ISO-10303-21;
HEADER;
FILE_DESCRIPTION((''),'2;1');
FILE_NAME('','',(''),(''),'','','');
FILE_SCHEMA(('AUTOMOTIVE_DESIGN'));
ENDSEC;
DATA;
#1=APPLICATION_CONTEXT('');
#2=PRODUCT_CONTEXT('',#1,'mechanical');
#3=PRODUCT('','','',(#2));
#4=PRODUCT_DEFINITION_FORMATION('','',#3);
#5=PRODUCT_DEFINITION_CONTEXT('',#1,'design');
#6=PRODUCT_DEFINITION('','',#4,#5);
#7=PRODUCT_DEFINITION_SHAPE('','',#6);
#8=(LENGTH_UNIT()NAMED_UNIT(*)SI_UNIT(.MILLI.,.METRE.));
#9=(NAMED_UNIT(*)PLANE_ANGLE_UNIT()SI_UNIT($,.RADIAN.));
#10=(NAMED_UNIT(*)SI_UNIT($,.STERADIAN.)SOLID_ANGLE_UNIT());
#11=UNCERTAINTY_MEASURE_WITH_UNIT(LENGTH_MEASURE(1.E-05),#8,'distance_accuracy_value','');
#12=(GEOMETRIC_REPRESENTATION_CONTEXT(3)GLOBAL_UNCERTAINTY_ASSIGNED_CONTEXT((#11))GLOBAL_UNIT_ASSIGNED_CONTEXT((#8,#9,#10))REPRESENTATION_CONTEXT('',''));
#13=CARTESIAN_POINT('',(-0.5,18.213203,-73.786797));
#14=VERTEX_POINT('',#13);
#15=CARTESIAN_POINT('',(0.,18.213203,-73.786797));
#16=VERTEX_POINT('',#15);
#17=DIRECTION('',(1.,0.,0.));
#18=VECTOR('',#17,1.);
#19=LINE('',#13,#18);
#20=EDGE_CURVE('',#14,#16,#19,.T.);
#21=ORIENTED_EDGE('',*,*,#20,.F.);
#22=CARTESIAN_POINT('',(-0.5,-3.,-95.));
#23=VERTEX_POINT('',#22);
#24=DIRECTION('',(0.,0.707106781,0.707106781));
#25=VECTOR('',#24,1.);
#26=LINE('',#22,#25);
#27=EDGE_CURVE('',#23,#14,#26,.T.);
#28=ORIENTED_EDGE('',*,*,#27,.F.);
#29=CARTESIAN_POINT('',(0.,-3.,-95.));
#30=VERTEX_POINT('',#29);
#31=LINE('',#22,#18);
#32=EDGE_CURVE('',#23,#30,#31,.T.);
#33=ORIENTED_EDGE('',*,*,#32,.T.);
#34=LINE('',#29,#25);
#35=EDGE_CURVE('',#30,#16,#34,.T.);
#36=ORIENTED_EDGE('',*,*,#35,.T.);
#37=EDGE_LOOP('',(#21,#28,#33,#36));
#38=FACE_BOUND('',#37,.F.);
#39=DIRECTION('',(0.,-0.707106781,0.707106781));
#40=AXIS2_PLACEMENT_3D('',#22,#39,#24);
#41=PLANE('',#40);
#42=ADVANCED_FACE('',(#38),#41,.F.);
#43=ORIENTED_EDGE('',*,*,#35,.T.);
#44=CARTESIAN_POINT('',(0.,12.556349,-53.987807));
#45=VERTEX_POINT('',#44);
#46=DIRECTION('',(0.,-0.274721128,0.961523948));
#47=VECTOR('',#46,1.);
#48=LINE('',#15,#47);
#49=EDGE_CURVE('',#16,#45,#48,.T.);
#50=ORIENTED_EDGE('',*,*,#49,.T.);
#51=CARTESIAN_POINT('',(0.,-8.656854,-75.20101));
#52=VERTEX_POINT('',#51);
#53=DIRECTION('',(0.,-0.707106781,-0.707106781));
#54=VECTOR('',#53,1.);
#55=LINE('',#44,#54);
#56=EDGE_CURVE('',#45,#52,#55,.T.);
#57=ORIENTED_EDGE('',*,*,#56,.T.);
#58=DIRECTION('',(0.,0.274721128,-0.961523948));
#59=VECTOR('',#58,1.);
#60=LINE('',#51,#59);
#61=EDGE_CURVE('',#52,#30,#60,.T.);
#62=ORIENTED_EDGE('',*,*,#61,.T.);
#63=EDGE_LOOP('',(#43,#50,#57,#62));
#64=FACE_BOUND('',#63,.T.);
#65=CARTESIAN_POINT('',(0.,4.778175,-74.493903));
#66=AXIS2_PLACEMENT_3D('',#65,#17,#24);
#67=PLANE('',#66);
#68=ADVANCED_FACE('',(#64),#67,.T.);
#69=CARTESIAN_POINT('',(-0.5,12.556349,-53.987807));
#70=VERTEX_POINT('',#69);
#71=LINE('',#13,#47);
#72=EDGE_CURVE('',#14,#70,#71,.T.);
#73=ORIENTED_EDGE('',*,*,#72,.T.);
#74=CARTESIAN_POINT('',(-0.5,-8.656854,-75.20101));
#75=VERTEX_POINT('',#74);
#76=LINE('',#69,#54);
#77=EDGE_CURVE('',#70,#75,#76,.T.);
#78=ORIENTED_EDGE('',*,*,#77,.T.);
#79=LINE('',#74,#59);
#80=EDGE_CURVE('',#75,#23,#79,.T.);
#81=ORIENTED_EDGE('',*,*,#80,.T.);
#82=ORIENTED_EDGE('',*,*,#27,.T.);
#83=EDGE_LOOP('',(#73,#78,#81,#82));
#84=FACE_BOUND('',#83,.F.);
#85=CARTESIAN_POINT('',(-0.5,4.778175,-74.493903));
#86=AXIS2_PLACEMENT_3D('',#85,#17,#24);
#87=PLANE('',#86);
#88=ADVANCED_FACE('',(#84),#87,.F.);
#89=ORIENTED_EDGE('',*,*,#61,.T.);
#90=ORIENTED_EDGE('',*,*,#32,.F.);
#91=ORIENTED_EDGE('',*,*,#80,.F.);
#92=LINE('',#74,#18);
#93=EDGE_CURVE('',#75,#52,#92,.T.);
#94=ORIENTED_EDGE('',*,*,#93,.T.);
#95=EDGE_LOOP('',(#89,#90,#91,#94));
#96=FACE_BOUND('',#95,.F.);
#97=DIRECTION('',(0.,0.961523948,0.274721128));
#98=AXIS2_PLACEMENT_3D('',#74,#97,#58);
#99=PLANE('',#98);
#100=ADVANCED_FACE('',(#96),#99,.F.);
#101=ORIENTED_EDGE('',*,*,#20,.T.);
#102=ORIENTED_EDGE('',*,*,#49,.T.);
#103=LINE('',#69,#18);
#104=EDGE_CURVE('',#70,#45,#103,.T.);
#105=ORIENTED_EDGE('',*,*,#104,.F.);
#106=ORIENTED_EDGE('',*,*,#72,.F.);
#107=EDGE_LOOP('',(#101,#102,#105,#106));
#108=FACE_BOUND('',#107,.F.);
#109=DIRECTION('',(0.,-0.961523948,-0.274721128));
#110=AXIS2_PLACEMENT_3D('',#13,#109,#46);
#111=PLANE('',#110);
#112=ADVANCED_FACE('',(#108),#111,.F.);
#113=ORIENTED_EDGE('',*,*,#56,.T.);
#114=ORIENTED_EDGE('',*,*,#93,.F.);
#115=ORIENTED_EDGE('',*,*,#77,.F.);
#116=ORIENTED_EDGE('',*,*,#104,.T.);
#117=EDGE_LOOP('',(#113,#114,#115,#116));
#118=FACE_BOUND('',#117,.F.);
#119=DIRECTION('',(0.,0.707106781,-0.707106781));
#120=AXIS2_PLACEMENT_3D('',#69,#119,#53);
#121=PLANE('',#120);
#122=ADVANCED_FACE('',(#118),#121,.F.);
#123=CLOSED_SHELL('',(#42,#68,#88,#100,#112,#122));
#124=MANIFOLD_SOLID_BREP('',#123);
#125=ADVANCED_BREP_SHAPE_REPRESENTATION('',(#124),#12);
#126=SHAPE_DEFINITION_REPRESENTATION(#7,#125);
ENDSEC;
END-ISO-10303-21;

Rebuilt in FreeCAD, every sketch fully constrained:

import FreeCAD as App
import Part
import Sketcher

V = App.Vector

doc = App.newDocument("Part")
body = doc.addObject("PartDesign::Body", "Body")

# Sketch on YZ plane
sketch1 = body.newObject("Sketcher::SketchObject", "Sketch")
sketch1.AttachmentSupport = (doc.getObject("YZ_Plane"), [""])
sketch1.MapMode = "FlatFace"
sketch1.addGeometry([
    Part.LineSegment(V(-20, 0, 0), V(-30, -18, 0)),
    Part.LineSegment(V(-30, -18, 0), V(0, -18, 0)),
    Part.LineSegment(V(0, -18, 0), V(10, 0, 0)),
    Part.LineSegment(V(10, 0, 0), V(-20, 0, 0)),
], False)
sketch1.addConstraint([
    Sketcher.Constraint("Coincident", 0, 2, 1, 1),
    Sketcher.Constraint("Coincident", 1, 2, 2, 1),
    Sketcher.Constraint("Coincident", 2, 2, 3, 1),
    Sketcher.Constraint("Coincident", 3, 2, 0, 1),
    Sketcher.Constraint("Horizontal", 1),
    Sketcher.Constraint("Horizontal", 3),
    Sketcher.Constraint("PointOnObject", 1, 2, -2),
    Sketcher.Constraint("PointOnObject", 2, 2, -1),
    Sketcher.Constraint("Parallel", 0, 2),
    Sketcher.Constraint("DistanceX", 1, 1, 1, 2, 30.0),
    Sketcher.Constraint("DistanceY", 0, 2, -1, 1, 18.0),
    Sketcher.Constraint("DistanceX", -1, 1, 2, 2, 10.0),
])
pad1 = body.newObject("PartDesign::Pad", "Pad")
pad1.Profile = sketch1
pad1.Length = 0.5
body2 = doc.addObject("PartDesign::Body", "Body001")
doc.recompute()

body.Placement = App.Placement(V(-0.5, 30, -77), App.Rotation(V(0, 0, 1), 0))
boolean = body2.newObject("PartDesign::Boolean", "Boolean")
boolean.Type = "Fuse"
boolean.addObjects([body])
body3 = doc.addObject("PartDesign::Body", "Body002")
doc.recompute()

body2.Placement = App.Placement(V(0, -67.175144, -27.824856), App.Rotation(V(-1, 0, 0), 315))
boolean2 = body3.newObject("PartDesign::Boolean", "Boolean001")
boolean2.Type = "Fuse"
boolean2.addObjects([body2])
body4 = doc.addObject("PartDesign::Body", "Body003")
doc.recompute()

body3.Placement = App.Placement(V(0, -3, 0), App.Rotation(V(0, 0, 1), 0))
boolean3 = body4.newObject("PartDesign::Boolean", "Boolean002")
boolean3.Type = "Fuse"
boolean3.addObjects([body3])

doc.recompute()
